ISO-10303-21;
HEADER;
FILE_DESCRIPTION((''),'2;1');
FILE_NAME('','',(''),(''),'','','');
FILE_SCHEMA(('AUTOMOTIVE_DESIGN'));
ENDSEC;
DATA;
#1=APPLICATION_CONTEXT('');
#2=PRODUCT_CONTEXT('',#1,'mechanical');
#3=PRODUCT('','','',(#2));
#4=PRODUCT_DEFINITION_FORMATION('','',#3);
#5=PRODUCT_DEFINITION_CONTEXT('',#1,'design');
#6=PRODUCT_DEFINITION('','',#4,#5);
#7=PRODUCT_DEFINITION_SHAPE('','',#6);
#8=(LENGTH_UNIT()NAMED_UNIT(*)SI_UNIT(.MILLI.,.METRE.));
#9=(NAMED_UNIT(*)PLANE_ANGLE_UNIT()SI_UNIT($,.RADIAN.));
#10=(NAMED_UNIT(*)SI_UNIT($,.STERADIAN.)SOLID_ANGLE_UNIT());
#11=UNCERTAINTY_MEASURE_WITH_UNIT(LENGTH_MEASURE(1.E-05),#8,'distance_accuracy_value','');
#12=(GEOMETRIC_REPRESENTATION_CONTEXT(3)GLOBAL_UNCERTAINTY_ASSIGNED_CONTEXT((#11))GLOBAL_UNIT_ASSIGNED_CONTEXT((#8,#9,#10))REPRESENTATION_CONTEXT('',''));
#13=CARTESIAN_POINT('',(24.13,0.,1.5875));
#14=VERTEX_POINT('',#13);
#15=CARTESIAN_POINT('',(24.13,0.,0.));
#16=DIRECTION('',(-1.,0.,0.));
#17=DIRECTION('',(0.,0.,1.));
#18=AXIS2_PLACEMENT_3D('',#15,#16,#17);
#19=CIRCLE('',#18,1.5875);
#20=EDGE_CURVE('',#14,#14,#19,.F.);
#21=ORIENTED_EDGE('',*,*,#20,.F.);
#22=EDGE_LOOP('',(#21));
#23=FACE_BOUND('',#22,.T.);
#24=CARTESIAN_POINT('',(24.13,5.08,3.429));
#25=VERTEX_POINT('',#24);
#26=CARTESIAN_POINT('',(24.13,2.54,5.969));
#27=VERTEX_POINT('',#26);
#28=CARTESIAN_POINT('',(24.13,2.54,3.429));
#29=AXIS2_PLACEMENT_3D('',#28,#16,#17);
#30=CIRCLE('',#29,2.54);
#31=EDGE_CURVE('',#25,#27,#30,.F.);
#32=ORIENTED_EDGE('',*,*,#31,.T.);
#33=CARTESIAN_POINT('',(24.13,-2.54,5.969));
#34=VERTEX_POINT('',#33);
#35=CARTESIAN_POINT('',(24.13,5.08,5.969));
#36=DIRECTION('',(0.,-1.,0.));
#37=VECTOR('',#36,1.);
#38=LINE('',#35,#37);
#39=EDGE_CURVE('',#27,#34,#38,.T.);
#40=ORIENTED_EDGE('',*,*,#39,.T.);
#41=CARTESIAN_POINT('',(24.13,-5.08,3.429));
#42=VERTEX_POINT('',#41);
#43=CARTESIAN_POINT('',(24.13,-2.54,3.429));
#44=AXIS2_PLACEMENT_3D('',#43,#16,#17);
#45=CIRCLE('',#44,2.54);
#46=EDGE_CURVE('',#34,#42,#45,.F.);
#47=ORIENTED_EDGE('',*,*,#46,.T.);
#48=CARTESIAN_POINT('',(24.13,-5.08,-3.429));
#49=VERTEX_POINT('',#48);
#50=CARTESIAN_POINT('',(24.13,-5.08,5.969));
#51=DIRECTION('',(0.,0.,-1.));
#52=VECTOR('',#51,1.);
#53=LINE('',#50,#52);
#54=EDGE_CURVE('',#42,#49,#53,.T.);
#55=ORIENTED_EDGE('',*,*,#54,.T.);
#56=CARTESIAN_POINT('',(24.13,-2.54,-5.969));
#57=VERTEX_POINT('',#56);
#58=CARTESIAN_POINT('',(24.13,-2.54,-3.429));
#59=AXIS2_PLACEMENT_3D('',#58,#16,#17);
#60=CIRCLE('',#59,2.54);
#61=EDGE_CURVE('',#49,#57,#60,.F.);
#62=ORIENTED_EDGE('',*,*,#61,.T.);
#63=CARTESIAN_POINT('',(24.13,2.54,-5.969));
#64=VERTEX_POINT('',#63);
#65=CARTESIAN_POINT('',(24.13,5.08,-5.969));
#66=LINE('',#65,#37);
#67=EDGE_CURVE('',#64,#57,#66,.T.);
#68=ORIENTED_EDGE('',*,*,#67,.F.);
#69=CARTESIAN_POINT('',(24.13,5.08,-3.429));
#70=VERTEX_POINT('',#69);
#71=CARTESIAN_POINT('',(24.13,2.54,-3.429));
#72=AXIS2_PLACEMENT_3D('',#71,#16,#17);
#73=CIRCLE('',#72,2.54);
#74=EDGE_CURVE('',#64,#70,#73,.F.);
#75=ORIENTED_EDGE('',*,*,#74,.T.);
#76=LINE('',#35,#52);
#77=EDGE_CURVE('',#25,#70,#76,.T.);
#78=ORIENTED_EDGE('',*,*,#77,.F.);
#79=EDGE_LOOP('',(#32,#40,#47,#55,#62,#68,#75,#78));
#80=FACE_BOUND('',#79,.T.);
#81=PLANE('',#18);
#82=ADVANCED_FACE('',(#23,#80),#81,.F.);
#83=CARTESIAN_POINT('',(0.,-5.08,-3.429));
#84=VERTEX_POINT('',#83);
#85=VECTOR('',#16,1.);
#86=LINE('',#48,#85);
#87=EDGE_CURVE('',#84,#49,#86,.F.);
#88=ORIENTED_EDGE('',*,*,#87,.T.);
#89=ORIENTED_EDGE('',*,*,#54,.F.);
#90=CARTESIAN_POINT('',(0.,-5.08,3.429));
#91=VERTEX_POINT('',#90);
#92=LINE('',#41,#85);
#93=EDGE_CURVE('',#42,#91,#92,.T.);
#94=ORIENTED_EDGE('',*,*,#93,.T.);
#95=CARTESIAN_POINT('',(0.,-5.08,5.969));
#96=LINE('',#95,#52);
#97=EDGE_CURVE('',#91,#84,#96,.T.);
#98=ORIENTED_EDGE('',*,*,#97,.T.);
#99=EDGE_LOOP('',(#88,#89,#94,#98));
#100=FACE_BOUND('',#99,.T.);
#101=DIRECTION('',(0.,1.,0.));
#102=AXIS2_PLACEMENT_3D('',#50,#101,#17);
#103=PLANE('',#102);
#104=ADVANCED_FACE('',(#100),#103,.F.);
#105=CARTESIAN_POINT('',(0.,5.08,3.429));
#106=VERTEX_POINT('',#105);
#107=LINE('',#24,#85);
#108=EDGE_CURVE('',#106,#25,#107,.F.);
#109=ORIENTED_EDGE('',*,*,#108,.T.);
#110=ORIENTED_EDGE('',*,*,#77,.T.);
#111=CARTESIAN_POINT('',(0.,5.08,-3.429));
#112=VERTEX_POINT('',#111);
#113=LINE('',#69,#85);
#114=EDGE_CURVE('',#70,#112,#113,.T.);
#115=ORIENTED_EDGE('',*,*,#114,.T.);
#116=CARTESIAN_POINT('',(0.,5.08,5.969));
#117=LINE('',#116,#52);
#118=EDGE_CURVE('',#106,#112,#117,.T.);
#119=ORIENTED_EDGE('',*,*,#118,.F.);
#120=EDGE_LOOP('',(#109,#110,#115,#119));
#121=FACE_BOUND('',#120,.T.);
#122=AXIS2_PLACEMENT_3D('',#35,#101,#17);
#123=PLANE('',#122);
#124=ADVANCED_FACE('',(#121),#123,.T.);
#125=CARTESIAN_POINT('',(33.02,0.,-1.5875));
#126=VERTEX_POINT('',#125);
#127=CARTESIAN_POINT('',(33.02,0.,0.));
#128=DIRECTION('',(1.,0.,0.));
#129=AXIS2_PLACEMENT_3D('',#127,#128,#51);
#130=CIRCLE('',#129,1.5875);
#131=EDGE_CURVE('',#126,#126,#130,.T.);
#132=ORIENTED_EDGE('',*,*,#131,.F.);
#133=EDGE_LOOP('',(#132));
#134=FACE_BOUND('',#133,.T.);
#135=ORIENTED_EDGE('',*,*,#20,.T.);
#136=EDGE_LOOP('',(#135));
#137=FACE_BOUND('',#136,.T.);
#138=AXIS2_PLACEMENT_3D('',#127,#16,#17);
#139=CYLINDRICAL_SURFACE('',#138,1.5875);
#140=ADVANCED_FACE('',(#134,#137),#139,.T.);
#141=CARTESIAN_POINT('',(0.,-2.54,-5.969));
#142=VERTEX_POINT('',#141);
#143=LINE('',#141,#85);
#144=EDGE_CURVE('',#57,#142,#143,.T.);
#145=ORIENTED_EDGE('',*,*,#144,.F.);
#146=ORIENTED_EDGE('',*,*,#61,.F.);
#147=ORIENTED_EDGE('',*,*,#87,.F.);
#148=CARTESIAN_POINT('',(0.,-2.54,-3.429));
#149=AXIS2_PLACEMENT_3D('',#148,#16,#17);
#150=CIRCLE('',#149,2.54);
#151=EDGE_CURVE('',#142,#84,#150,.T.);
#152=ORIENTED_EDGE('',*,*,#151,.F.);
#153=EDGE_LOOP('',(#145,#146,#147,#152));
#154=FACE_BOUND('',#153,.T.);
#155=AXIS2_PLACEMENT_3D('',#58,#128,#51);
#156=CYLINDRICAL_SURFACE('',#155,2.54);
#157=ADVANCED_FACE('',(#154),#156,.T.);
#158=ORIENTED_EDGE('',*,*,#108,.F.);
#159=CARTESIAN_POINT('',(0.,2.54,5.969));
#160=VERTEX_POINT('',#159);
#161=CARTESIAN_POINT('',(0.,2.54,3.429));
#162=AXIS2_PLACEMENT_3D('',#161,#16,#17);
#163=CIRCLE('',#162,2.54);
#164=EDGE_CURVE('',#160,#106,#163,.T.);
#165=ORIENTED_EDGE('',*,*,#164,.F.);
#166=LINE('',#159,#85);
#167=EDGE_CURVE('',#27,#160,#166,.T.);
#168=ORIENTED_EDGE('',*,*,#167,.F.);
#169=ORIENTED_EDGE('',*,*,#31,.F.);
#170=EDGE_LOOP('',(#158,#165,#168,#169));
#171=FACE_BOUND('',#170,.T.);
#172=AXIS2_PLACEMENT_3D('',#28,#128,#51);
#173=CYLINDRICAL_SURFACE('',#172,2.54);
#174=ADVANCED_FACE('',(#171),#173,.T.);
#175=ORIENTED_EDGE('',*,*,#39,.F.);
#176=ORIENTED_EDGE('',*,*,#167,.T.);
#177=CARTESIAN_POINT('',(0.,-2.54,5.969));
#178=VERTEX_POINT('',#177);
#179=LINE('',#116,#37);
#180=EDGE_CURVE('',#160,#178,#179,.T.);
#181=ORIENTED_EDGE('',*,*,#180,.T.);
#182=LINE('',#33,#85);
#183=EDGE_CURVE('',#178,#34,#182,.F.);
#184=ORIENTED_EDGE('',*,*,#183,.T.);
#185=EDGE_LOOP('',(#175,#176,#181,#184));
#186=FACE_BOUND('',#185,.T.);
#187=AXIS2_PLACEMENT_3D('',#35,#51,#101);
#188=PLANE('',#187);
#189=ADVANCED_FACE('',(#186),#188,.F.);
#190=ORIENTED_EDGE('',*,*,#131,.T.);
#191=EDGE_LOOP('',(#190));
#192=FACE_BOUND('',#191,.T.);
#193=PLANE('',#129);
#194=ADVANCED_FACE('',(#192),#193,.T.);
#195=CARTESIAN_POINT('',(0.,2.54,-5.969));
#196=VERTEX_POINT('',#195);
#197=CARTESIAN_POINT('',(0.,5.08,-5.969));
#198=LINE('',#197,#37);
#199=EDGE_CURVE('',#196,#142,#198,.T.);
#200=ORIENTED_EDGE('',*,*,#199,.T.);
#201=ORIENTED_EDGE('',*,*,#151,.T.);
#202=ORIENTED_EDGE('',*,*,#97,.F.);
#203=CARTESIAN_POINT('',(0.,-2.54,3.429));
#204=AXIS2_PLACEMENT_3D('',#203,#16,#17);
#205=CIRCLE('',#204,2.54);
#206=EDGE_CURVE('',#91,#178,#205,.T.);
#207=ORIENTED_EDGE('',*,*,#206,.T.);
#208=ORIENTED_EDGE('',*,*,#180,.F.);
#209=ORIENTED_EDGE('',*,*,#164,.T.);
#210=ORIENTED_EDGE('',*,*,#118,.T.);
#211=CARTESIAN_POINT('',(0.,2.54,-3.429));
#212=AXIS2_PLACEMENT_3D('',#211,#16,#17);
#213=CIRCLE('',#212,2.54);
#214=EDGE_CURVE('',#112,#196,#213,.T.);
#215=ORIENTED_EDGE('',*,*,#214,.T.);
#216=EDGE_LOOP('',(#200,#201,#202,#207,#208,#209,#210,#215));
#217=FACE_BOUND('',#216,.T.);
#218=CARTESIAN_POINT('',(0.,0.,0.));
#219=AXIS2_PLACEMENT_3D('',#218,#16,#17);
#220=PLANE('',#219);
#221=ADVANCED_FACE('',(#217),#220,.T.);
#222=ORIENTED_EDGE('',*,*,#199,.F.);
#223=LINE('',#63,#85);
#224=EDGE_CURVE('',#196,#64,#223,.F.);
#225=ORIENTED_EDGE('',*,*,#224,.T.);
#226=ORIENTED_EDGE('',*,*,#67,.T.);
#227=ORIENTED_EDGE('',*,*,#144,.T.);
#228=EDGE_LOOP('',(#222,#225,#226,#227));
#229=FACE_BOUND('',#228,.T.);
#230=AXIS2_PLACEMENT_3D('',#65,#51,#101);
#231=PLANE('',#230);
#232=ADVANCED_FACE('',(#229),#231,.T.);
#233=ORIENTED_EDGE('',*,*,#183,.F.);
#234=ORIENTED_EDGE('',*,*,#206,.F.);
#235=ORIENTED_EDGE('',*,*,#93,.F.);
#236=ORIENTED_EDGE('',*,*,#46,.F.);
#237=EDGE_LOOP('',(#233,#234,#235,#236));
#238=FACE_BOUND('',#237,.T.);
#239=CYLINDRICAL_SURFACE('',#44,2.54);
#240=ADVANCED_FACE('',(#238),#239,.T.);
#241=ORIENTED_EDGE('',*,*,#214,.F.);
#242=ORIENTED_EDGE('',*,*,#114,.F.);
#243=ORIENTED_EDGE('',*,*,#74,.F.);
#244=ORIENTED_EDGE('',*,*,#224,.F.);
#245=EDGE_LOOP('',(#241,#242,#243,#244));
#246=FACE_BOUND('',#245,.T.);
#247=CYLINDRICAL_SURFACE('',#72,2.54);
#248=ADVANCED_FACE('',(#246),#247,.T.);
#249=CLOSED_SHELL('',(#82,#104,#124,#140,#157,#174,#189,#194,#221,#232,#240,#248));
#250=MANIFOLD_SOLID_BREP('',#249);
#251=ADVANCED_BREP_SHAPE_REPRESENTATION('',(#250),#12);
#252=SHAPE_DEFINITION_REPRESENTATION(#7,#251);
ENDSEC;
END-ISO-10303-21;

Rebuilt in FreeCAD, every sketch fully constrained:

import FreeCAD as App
import Part
import Sketcher
Q = App.Units.Quantity


def edges_at(feature, points):
    """Names of the edges that pass closest to the given points."""
    edges = feature.Shape.Edges
    near = lambda p: min(range(len(edges)), key=lambda i: edges[i].distToShape(Part.Vertex(*p))[0])
    return sorted({f"Edge{near(p) + 1}" for p in points})

doc = App.newDocument("Part")
body = doc.addObject("PartDesign::Body", "Body")

# Sketch on YZ plane
sketch1 = doc.addObject("Sketcher::SketchObject", "Sketch")
body.addObject(sketch1)
sketch1.AttachmentSupport = (doc.YZ_Plane, [""])
sketch1.MapMode = "FlatFace"
sketch1.addGeometry(Part.LineSegment(App.Vector(5, 6, 0), App.Vector(-5, 6, 0)), False)
sketch1.addGeometry(Part.LineSegment(App.Vector(-5, 6, 0), App.Vector(-5, -6, 0)), False)
sketch1.addGeometry(Part.LineSegment(App.Vector(-5, -6, 0), App.Vector(5, -6, 0)), False)
sketch1.addGeometry(Part.LineSegment(App.Vector(5, -6, 0), App.Vector(5, 6, 0)), False)
sketch1.addConstraint(Sketcher.Constraint("Coincident", 0, 2, 1, 1))
sketch1.addConstraint(Sketcher.Constraint("Coincident", 1, 2, 2, 1))
sketch1.addConstraint(Sketcher.Constraint("Coincident", 2, 2, 3, 1))
sketch1.addConstraint(Sketcher.Constraint("Coincident", 3, 2, 0, 1))
sketch1.addConstraint(Sketcher.Constraint("Horizontal", 0))
sketch1.addConstraint(Sketcher.Constraint("Vertical", 1))
sketch1.addConstraint(Sketcher.Constraint("Horizontal", 2))
sketch1.addConstraint(Sketcher.Constraint("Vertical", 3))
sketch1.addConstraint(Sketcher.Constraint("Symmetric", 0, 2, 2, 2, -1, 1))
sketch1.addConstraint(Sketcher.Constraint("DistanceX", 0, 2, 0, 1, Q("0.4 in")))
sketch1.addConstraint(Sketcher.Constraint("DistanceY", 1, 2, 1, 1, Q("0.47 in")))
pad1 = doc.addObject("PartDesign::Pad", "Pad")
body.addObject(pad1)
pad1.Profile = sketch1
pad1.Length = Q("0.95 in")

# Sketch on YZ plane
sketch2 = doc.addObject("Sketcher::SketchObject", "Sketch001")
body.addObject(sketch2)
sketch2.AttachmentSupport = (doc.YZ_Plane, [""])
sketch2.MapMode = "FlatFace"
sketch2.AttachmentOffset = App.Placement(App.Vector(0, 0, 0.95 * 25.4), App.Rotation())
sketch2.addGeometry(Part.Circle(App.Vector(0, 0, 0), App.Vector(0, 0, 1), 1.6), False)
sketch2.addConstraint(Sketcher.Constraint("Coincident", 0, 3, -1, 1))
sketch2.addConstraint(Sketcher.Constraint("Diameter", 0, Q("0.125 in")))
pad2 = doc.addObject("PartDesign::Pad", "Pad001")
body.addObject(pad2)
pad2.Profile = sketch2
pad2.Length = Q("0.35 in")
doc.recompute()

fillet = doc.addObject("PartDesign::Fillet", "Fillet")
body.addObject(fillet)
fillet.Base = (pad2, edges_at(pad2, [
    (12.065, 5.08, 5.969),
    (12.065, -5.08, 5.969),
    (12.065, -5.08, -5.969),
    (12.065, 5.08, -5.969),
]))
fillet.Radius = Q("0.1 in")

doc.recompute()
